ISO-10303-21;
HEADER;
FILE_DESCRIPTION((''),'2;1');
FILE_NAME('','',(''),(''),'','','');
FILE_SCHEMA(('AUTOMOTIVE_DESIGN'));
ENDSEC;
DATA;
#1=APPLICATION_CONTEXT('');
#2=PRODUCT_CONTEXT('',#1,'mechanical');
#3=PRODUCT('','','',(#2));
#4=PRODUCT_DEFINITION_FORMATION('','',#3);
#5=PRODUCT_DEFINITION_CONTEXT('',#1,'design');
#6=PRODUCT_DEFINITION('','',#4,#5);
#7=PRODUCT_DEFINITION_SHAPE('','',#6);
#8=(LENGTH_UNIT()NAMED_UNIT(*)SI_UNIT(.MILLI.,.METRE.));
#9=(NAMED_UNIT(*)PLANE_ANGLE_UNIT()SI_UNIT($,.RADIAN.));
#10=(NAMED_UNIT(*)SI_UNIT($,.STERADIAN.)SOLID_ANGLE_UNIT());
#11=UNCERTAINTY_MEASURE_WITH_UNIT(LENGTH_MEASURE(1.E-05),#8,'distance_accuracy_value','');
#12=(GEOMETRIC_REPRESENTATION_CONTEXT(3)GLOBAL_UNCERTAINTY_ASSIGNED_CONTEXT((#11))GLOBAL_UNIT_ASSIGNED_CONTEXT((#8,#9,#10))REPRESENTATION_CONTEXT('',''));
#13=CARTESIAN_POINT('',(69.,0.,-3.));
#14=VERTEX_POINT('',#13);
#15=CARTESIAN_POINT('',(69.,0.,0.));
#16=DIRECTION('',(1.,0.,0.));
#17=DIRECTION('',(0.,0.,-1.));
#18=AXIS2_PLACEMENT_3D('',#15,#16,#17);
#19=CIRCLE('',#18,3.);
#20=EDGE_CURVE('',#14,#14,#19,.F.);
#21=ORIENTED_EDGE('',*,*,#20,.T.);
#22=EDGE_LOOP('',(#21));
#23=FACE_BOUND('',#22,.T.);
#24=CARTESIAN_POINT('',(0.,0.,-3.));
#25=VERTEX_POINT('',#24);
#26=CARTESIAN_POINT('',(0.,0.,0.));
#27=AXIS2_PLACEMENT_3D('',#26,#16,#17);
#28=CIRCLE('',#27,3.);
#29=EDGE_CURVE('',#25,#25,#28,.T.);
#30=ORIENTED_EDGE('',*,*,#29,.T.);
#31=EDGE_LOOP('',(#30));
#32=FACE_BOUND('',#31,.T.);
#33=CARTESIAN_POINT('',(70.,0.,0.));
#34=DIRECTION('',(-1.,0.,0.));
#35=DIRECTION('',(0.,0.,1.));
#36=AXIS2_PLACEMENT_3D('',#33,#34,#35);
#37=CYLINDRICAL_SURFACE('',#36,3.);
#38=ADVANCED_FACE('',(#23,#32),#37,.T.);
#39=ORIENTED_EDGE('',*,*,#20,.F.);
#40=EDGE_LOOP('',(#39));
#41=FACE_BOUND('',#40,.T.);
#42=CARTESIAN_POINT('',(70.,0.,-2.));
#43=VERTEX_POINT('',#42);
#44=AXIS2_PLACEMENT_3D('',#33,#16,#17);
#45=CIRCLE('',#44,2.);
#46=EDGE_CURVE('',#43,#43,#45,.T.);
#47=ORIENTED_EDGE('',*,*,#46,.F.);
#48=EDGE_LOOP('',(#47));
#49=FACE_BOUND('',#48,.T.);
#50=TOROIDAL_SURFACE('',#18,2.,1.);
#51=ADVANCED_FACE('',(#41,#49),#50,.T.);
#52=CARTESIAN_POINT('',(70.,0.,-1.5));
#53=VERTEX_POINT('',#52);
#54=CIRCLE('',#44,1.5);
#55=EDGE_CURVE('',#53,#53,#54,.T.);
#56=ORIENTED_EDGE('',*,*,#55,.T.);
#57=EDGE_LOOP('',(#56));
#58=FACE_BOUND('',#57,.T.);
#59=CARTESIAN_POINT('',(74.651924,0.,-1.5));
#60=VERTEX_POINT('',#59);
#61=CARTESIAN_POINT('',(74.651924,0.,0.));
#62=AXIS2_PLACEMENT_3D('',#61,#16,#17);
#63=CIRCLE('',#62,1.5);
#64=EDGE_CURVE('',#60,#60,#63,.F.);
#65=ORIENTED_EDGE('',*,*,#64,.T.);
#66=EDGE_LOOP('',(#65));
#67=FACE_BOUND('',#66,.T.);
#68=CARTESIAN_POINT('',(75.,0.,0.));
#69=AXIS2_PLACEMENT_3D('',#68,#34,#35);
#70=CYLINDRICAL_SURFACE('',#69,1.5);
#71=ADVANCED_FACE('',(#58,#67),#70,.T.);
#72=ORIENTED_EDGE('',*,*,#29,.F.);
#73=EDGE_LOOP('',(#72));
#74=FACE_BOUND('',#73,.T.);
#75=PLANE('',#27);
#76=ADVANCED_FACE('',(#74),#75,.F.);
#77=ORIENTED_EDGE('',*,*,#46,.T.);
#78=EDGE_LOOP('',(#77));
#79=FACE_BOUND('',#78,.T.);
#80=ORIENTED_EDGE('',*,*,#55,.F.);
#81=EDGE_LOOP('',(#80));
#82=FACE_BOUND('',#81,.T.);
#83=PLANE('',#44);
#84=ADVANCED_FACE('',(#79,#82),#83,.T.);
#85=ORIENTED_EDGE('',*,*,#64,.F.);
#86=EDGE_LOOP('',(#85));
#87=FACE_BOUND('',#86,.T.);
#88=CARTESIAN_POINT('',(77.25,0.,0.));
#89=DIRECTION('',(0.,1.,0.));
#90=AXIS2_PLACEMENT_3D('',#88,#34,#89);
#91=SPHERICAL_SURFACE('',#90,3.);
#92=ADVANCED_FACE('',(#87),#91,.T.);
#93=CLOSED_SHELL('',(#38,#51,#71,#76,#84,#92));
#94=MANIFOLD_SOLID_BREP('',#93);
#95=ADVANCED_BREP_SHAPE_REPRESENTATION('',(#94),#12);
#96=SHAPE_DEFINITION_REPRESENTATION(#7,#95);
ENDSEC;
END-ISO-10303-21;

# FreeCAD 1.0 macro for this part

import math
import FreeCAD as App
import Part
import Sketcher

V = App.Vector
Q = App.Units.Quantity


def edges_at(feature, points):
    """Names of the edges that pass closest to the given points."""
    edges = feature.Shape.Edges
    near = lambda p: min(range(len(edges)), key=lambda i: edges[i].distToShape(Part.Vertex(*p))[0])
    return sorted({f"Edge{near(p) + 1}" for p in points})

doc = App.newDocument("Part")
params = doc.addObject("Spreadsheet::Sheet", "Params")
for row, (alias, value) in enumerate([
    ("sketch1_diameter", "6 mm"),
    ("pad1_length", "70 mm"),
    ("sketch2_diameter", "3 mm"),
    ("pad2_length", "5 mm"),
    ("fillet_radius", "1 mm"),
    ("sketch3_radius", "3 mm"),
    ("revolution_angle", "360 deg"),
], start=1):
    params.set(f"A{row}", alias)
    params.set(f"B{row}", "=" + value)
    params.setAlias(f"B{row}", alias)

body = doc.addObject("PartDesign::Body", "Body")

# Sketch on YZ plane
sketch1 = body.newObject("Sketcher::SketchObject", "Sketch")
sketch1.AttachmentSupport = (doc.getObject("YZ_Plane"), [""])
sketch1.MapMode = "FlatFace"
sketch1.addGeometry(Part.Circle(V(0, 0, 0), V(0, 0, 1), 3), False)
sketch1.addConstraint([
    Sketcher.Constraint("Coincident", 0, 3, -1, 1),
    Sketcher.Constraint("Diameter", 0, Q("6 mm")),
])
sketch1.setExpression("Constraints[1]", "Params.sketch1_diameter")
pad1 = body.newObject("PartDesign::Pad", "Pad")
pad1.Profile = sketch1
pad1.setExpression("Length", "Params.pad1_length")

# Sketch on YZ plane
sketch2 = body.newObject("Sketcher::SketchObject", "Sketch001")
sketch2.AttachmentSupport = (doc.getObject("YZ_Plane"), [""])
sketch2.MapMode = "FlatFace"
sketch2.AttachmentOffset = App.Placement(V(0, 0, 70), App.Rotation())
sketch2.addGeometry(Part.Circle(V(0, 0, 0), V(0, 0, 1), 1.5), False)
sketch2.addConstraint([
    Sketcher.Constraint("Coincident", 0, 3, -1, 1),
    Sketcher.Constraint("Diameter", 0, Q("3 mm")),
])
sketch2.setExpression("Constraints[1]", "Params.sketch2_diameter")
pad2 = body.newObject("PartDesign::Pad", "Pad001")
pad2.Profile = sketch2
pad2.setExpression("Length", "Params.pad2_length")
doc.recompute()

fillet = body.newObject("PartDesign::Fillet", "Fillet")
fillet.Base = (pad2, edges_at(pad2, [(70, 0, 3)]))
fillet.setExpression("Radius", "Params.fillet_radius")

# Sketch on XY plane
sketch3 = body.newObject("Sketcher::SketchObject", "Sketch002")
sketch3.AttachmentSupport = (doc.getObject("XY_Plane"), [""])
sketch3.MapMode = "FlatFace"
sketch3.addGeometry([
    Part.ArcOfCircle(Part.Circle(V(77.25, 0, 0), V(0, 0, 1), 3), math.radians(180), math.radians(360)),
    Part.LineSegment(V(80.25, 0, 0), V(74.25, 0, 0)),
], False)
sketch3.addConstraint([
    Sketcher.Constraint("Coincident", 0, 1, 1, 2),
    Sketcher.Constraint("Coincident", 1, 1, 0, 2),
    Sketcher.Constraint("Horizontal", 1),
    Sketcher.Constraint("PointOnObject", 0, 3, -1),
    Sketcher.Constraint("PointOnObject", 0, 1, -1),
    Sketcher.Constraint("Radius", 0, Q("3 mm")),
    Sketcher.Constraint("DistanceX", -1, 1, 0, 3, Q("77.25 mm")),
])
sketch3.setExpression("Constraints[5]", "Params.sketch3_radius")
revolution = body.newObject("PartDesign::Revolution", "Revolution")
revolution.Profile = sketch3
revolution.ReferenceAxis = (sketch3, ["H_Axis"])
revolution.setExpression("Angle", "Params.revolution_angle")

doc.recompute()
